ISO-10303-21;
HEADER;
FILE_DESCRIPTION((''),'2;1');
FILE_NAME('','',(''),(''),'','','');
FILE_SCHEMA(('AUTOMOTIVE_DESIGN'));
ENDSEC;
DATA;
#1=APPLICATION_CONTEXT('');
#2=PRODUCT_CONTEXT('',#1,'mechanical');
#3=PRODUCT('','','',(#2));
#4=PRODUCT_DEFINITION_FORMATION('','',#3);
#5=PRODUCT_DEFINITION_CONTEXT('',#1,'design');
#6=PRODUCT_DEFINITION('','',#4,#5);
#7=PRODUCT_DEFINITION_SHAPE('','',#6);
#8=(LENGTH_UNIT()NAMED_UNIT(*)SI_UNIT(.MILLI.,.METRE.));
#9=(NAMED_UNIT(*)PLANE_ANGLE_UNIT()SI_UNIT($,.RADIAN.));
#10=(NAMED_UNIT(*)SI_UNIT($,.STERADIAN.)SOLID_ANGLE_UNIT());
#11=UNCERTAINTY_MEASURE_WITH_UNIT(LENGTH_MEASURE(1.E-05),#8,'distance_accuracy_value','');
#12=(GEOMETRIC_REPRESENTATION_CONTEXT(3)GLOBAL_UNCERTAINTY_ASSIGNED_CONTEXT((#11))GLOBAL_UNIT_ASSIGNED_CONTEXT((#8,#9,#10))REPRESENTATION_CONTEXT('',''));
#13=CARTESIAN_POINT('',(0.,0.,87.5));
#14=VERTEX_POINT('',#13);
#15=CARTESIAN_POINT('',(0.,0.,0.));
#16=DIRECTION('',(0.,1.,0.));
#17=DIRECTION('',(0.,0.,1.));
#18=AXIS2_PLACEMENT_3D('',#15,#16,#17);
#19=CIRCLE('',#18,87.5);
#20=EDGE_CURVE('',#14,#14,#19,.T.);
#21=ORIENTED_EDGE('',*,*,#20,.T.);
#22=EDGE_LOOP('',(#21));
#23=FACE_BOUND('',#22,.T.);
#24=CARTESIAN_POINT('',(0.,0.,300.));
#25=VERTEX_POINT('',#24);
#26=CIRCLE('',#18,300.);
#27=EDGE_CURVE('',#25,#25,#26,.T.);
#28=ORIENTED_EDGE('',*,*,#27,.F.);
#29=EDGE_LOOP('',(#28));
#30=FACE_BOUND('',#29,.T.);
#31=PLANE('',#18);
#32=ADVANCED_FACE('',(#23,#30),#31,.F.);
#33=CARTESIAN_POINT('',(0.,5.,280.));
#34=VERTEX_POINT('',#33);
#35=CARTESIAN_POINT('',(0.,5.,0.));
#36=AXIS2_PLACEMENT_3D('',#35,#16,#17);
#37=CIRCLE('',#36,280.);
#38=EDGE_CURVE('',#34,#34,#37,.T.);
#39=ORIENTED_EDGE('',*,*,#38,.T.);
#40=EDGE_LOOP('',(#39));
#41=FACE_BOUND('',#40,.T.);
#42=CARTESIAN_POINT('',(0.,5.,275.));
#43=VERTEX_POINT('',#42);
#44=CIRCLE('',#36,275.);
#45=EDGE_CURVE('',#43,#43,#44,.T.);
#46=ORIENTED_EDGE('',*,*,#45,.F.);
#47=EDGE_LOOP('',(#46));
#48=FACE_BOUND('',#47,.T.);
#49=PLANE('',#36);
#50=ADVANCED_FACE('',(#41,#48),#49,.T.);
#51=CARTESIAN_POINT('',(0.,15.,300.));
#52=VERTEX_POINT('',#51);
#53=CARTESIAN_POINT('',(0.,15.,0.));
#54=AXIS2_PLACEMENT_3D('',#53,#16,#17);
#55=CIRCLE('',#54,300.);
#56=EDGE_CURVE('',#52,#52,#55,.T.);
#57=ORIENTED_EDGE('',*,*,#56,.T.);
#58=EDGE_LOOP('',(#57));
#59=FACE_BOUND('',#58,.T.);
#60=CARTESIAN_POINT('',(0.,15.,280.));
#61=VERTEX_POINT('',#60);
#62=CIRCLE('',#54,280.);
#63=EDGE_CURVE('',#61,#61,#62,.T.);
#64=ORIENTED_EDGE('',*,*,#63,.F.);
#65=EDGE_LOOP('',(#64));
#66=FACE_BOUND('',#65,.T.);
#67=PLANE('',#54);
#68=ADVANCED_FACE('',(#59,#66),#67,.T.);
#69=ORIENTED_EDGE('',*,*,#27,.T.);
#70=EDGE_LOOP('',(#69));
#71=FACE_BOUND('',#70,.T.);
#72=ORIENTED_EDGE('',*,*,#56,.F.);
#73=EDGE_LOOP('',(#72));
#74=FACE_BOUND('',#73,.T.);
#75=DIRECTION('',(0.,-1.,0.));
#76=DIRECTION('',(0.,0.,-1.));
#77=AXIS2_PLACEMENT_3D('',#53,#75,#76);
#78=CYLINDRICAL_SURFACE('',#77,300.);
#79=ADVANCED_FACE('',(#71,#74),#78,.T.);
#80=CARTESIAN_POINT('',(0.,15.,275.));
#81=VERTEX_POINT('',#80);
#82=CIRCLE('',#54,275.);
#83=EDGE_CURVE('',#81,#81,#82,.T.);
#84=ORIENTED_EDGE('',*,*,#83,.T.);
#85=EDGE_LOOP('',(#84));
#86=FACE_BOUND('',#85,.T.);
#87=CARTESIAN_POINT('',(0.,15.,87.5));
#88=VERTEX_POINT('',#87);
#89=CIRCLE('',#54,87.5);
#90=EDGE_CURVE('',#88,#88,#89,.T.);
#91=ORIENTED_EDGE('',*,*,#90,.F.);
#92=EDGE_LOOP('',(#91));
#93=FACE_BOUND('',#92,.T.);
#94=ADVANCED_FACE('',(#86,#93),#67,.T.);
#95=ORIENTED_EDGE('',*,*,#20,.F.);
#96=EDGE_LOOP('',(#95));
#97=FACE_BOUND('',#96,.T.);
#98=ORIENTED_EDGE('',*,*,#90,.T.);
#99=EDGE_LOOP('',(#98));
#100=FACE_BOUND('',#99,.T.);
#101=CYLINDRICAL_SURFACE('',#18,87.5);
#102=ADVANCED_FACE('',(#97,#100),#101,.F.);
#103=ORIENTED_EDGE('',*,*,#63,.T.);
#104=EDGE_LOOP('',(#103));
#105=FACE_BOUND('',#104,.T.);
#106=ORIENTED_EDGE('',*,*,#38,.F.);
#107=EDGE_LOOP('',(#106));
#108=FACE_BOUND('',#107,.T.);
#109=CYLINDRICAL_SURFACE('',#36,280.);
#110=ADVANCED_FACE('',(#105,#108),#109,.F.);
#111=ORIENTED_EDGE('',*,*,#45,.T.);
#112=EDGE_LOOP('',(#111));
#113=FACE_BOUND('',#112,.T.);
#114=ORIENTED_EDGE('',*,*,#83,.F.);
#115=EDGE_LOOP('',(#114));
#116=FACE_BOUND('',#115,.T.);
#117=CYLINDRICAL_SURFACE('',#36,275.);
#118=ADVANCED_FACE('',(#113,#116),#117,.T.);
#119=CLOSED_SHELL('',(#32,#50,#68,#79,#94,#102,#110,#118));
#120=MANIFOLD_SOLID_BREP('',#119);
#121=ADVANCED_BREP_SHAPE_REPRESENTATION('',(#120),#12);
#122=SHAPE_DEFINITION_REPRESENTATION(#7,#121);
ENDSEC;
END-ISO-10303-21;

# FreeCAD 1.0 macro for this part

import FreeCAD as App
import Part
import Sketcher

V = App.Vector
Q = App.Units.Quantity

doc = App.newDocument("Part")
params = doc.addObject("Spreadsheet::Sheet", "Params")
for row, (alias, value) in enumerate([
    ("sketch1_diameter", "600 mm"),
    ("pad1_length", "15 mm"),
    ("sketch2_diameter", "175 mm"),
    ("sketch3_diameter", "560 mm"),
    ("sketch3_diameter2", "550 mm"),
    ("pocket2_length", "10 mm"),
], start=1):
    params.set(f"A{row}", alias)
    params.set(f"B{row}", "=" + value)
    params.setAlias(f"B{row}", alias)

body = doc.addObject("PartDesign::Body", "Body")

# Sketch on XZ plane
sketch1 = body.newObject("Sketcher::SketchObject", "Sketch")
sketch1.AttachmentSupport = (doc.getObject("XZ_Plane"), [""])
sketch1.MapMode = "FlatFace"
sketch1.addGeometry(Part.Circle(V(0, 0, 0), V(0, 0, 1), 300), False)
sketch1.addConstraint([
    Sketcher.Constraint("Coincident", 0, 3, -1, 1),
    Sketcher.Constraint("Diameter", 0, Q("600 mm")),
])
sketch1.setExpression("Constraints[1]", "Params.sketch1_diameter")
pad1 = body.newObject("PartDesign::Pad", "Pad")
pad1.Profile = sketch1
pad1.setExpression("Length", "Params.pad1_length")
pad1.Reversed = True

# Sketch on XZ plane
sketch2 = body.newObject("Sketcher::SketchObject", "Sketch001")
sketch2.AttachmentSupport = (doc.getObject("XZ_Plane"), [""])
sketch2.MapMode = "FlatFace"
sketch2.AttachmentOffset = App.Placement(V(0, 0, -15), App.Rotation())
sketch2.addGeometry(Part.Circle(V(0, 0, 0), V(0, 0, 1), 88), False)
sketch2.addConstraint([
    Sketcher.Constraint("Coincident", 0, 3, -1, 1),
    Sketcher.Constraint("Diameter", 0, Q("175 mm")),
])
sketch2.setExpression("Constraints[1]", "Params.sketch2_diameter")
pocket1 = body.newObject("PartDesign::Pocket", "Pocket")
pocket1.Profile = sketch2
pocket1.Type = "ThroughAll"
pocket1.Reversed = True

# Sketch on XZ plane
sketch3 = body.newObject("Sketcher::SketchObject", "Sketch002")
sketch3.AttachmentSupport = (doc.getObject("XZ_Plane"), [""])
sketch3.MapMode = "FlatFace"
sketch3.AttachmentOffset = App.Placement(V(0, 0, -15), App.Rotation())
sketch3.addGeometry([
    Part.Circle(V(0, 0, 0), V(0, 0, 1), 280),
    Part.Circle(V(0, 0, 0), V(0, 0, 1), 275),
], False)
sketch3.addConstraint([
    Sketcher.Constraint("Coincident", 0, 3, -1, 1),
    Sketcher.Constraint("Coincident", 1, 3, -1, 1),
    Sketcher.Constraint("Diameter", 0, Q("560 mm")),
    Sketcher.Constraint("Diameter", 1, Q("550 mm")),
])
sketch3.setExpression("Constraints[2]", "Params.sketch3_diameter")
sketch3.setExpression("Constraints[3]", "Params.sketch3_diameter2")
pocket2 = body.newObject("PartDesign::Pocket", "Pocket001")
pocket2.Profile = sketch3
pocket2.setExpression("Length", "Params.pocket2_length")
pocket2.Reversed = True

doc.recompute()
